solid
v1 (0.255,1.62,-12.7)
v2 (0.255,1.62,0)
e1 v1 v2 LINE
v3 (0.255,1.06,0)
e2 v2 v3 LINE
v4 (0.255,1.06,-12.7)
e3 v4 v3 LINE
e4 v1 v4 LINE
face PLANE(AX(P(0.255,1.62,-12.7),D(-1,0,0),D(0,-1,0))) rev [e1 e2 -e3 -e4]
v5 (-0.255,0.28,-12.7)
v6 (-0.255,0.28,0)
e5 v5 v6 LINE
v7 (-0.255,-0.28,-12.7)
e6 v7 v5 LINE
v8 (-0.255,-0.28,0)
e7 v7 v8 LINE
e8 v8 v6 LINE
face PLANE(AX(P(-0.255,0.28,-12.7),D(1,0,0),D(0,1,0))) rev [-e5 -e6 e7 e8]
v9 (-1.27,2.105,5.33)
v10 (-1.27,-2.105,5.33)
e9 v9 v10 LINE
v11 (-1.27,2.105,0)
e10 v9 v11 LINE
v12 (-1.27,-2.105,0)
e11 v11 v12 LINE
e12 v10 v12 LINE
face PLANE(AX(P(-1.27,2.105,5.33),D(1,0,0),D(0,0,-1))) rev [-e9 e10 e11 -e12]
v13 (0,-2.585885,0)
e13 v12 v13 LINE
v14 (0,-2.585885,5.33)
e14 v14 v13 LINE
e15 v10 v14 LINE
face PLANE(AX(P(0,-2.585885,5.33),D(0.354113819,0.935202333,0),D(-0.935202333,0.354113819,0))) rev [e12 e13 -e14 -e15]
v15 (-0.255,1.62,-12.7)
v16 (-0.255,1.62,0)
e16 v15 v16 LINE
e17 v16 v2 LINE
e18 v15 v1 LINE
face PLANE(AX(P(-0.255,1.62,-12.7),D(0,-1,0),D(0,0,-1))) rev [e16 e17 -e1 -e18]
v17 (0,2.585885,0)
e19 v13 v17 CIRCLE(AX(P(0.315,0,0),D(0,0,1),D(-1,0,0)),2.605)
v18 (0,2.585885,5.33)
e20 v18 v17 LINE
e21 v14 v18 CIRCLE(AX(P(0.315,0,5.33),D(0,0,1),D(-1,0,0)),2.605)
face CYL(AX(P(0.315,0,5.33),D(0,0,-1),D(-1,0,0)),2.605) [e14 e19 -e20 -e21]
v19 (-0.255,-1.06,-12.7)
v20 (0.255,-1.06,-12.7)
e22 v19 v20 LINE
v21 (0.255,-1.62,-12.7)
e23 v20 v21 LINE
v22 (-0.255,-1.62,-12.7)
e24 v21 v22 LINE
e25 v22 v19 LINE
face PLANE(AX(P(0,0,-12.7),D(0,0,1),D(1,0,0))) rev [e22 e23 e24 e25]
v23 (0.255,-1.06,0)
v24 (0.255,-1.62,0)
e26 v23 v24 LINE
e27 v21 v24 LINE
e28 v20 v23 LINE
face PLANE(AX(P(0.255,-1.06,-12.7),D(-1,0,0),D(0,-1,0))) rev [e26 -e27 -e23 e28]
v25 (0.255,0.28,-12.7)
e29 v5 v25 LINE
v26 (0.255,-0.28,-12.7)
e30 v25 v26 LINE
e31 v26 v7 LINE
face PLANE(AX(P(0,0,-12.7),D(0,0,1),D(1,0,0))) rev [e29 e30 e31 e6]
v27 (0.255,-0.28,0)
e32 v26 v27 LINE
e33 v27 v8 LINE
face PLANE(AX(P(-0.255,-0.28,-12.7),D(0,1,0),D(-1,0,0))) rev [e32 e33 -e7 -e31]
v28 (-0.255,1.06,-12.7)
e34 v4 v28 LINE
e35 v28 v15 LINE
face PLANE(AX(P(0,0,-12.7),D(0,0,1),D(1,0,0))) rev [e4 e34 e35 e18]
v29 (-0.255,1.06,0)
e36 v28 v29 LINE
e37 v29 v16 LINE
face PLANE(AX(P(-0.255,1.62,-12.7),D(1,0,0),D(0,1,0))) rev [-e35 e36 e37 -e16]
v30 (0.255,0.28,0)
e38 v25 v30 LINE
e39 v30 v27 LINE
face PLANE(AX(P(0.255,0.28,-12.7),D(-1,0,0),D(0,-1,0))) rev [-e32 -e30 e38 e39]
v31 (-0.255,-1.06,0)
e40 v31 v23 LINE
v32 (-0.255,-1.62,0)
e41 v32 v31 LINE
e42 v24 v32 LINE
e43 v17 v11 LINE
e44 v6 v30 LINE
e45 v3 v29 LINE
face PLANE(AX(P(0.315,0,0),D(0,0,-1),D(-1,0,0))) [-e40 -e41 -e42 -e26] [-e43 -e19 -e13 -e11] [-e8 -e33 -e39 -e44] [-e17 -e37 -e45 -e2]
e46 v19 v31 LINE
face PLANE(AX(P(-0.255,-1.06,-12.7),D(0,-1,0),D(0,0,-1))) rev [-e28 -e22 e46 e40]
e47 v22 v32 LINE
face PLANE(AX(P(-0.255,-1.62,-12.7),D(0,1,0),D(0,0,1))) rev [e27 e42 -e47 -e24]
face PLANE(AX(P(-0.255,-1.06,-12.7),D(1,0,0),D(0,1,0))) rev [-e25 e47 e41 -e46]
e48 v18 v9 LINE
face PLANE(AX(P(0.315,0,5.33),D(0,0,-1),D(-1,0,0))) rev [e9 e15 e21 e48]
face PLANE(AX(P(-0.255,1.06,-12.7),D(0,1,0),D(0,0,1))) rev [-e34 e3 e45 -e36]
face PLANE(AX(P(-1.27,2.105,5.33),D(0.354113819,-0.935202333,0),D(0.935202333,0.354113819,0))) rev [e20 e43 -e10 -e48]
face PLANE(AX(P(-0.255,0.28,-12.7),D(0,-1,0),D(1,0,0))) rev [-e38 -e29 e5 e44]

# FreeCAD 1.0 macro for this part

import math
import FreeCAD as App
import Part
import Sketcher
Q = App.Units.Quantity

doc = App.newDocument("Part")
body = doc.addObject("PartDesign::Body", "Body")

# Sketch on XY plane
sketch1 = doc.addObject("Sketcher::SketchObject", "Sketch")
body.addObject(sketch1)
sketch1.AttachmentSupport = (doc.XY_Plane, [""])
sketch1.MapMode = "FlatFace"
sketch1.addGeometry([
    Part.LineSegment(App.Vector(-1.3, 2.1, 0), App.Vector(-1.3, -2.1, 0)),
    Part.LineSegment(App.Vector(-1.3, -2.1, 0), App.Vector(0, -2.6, 0)),
    Part.ArcOfCircle(Part.Circle(App.Vector(0.3, 0, 0), App.Vector(0, 0, 1), 2.6), math.radians(-97), math.radians(97)),
    Part.LineSegment(App.Vector(0, 2.6, 0), App.Vector(-1.3, 2.1, 0)),
], False)
sketch1.addConstraint([
    Sketcher.Constraint("Coincident", 0, 2, 1, 1),
    Sketcher.Constraint("Coincident", 1, 2, 2, 1),
    Sketcher.Constraint("Coincident", 2, 2, 3, 1),
    Sketcher.Constraint("Coincident", 3, 2, 0, 1),
    Sketcher.Constraint("Vertical", 0),
    Sketcher.Constraint("Symmetric", 1, 2, 2, 2, -1, 1),
    Sketcher.Constraint("PointOnObject", 2, 3, -1),
    Sketcher.Constraint("Equal", 1, 3),
    Sketcher.Constraint("DistanceX", 0, 2, -1, 1, Q("0.05 in")),
    Sketcher.Constraint("Radius", 2, Q("2.605 mm")),
    Sketcher.Constraint("DistanceY", 0, 2, 0, 1, Q("4.21 mm")),
    Sketcher.Constraint("DistanceX", -1, 1, 2, 3, Q("0.315 mm")),
])
pad1 = doc.addObject("PartDesign::Pad", "Pad")
body.addObject(pad1)
pad1.Profile = sketch1
pad1.Length = 5.33

# Sketch on XY plane
sketch2 = doc.addObject("Sketcher::SketchObject", "Sketch001")
body.addObject(sketch2)
sketch2.AttachmentSupport = (doc.XY_Plane, [""])
sketch2.MapMode = "FlatFace"
sketch2.addGeometry([
    Part.LineSegment(App.Vector(0.3, 1.6, 0), App.Vector(0.3, 1.1, 0)),  # 0
    Part.LineSegment(App.Vector(0.3, 1.1, 0), App.Vector(-0.3, 1.1, 0)),  # 1
    Part.LineSegment(App.Vector(-0.3, 1.1, 0), App.Vector(-0.3, 1.6, 0)),  # 2
    Part.LineSegment(App.Vector(-0.3, 1.6, 0), App.Vector(0.3, 1.6, 0)),  # 3
    Part.LineSegment(App.Vector(0.3, 0.3, 0), App.Vector(0.3, -0.3, 0)),  # 4
    Part.LineSegment(App.Vector(0.3, -0.3, 0), App.Vector(-0.3, -0.3, 0)),  # 5
    Part.LineSegment(App.Vector(-0.3, -0.3, 0), App.Vector(-0.3, 0.3, 0)),  # 6
    Part.LineSegment(App.Vector(-0.3, 0.3, 0), App.Vector(0.3, 0.3, 0)),  # 7
    Part.LineSegment(App.Vector(0.3, -1.1, 0), App.Vector(0.3, -1.6, 0)),  # 8
    Part.LineSegment(App.Vector(0.3, -1.6, 0), App.Vector(-0.3, -1.6, 0)),  # 9
    Part.LineSegment(App.Vector(-0.3, -1.6, 0), App.Vector(-0.3, -1.1, 0)),  # 10
    Part.LineSegment(App.Vector(-0.3, -1.1, 0), App.Vector(0.3, -1.1, 0)),  # 11
], False)
sketch2.addConstraint([
    Sketcher.Constraint("Coincident", 0, 2, 1, 1),
    Sketcher.Constraint("Coincident", 1, 2, 2, 1),
    Sketcher.Constraint("Coincident", 2, 2, 3, 1),
    Sketcher.Constraint("Coincident", 3, 2, 0, 1),
    Sketcher.Constraint("Coincident", 4, 2, 5, 1),
    Sketcher.Constraint("Coincident", 5, 2, 6, 1),
    Sketcher.Constraint("Coincident", 6, 2, 7, 1),
    Sketcher.Constraint("Coincident", 7, 2, 4, 1),
    Sketcher.Constraint("Coincident", 8, 2, 9, 1),
    Sketcher.Constraint("Coincident", 9, 2, 10, 1),
    Sketcher.Constraint("Coincident", 10, 2, 11, 1),
    Sketcher.Constraint("Coincident", 11, 2, 8, 1),
    Sketcher.Constraint("Vertical", 0),
    Sketcher.Constraint("Horizontal", 1),
    Sketcher.Constraint("Vertical", 2),
    Sketcher.Constraint("Horizontal", 3),
    Sketcher.Constraint("Vertical", 4),
    Sketcher.Constraint("Horizontal", 5),
    Sketcher.Constraint("Vertical", 6),
    Sketcher.Constraint("Horizontal", 7),
    Sketcher.Constraint("Vertical", 8),
    Sketcher.Constraint("Horizontal", 9),
    Sketcher.Constraint("Vertical", 10),
    Sketcher.Constraint("Horizontal", 11),
    Sketcher.Constraint("Symmetric", 4, 2, 6, 2, -1, 1),
    Sketcher.Constraint("Symmetric", 2, 2, 8, 2, -1, 1),
    Sketcher.Constraint("Symmetric", 0, 2, 10, 2, -1, 1),
    Sketcher.Constraint("Vertical", 3, 2, 4, 2),
    Sketcher.Constraint("Vertical", 2, 2, 5, 2),
    Sketcher.Constraint("Equal", 2, 4),
    Sketcher.Constraint("DistanceX", 1, 2, 1, 1, Q("0.51 mm")),
    Sketcher.Constraint("DistanceY", 0, 2, 0, 1, Q("0.56 mm")),
    Sketcher.Constraint("DistanceY", -1, 1, 0, 2, Q("1.06 mm")),
])
pad2 = doc.addObject("PartDesign::Pad", "Pad001")
body.addObject(pad2)
pad2.Profile = sketch2
pad2.Length = Q("0.5 in")
pad2.Reversed = True

doc.recompute()
